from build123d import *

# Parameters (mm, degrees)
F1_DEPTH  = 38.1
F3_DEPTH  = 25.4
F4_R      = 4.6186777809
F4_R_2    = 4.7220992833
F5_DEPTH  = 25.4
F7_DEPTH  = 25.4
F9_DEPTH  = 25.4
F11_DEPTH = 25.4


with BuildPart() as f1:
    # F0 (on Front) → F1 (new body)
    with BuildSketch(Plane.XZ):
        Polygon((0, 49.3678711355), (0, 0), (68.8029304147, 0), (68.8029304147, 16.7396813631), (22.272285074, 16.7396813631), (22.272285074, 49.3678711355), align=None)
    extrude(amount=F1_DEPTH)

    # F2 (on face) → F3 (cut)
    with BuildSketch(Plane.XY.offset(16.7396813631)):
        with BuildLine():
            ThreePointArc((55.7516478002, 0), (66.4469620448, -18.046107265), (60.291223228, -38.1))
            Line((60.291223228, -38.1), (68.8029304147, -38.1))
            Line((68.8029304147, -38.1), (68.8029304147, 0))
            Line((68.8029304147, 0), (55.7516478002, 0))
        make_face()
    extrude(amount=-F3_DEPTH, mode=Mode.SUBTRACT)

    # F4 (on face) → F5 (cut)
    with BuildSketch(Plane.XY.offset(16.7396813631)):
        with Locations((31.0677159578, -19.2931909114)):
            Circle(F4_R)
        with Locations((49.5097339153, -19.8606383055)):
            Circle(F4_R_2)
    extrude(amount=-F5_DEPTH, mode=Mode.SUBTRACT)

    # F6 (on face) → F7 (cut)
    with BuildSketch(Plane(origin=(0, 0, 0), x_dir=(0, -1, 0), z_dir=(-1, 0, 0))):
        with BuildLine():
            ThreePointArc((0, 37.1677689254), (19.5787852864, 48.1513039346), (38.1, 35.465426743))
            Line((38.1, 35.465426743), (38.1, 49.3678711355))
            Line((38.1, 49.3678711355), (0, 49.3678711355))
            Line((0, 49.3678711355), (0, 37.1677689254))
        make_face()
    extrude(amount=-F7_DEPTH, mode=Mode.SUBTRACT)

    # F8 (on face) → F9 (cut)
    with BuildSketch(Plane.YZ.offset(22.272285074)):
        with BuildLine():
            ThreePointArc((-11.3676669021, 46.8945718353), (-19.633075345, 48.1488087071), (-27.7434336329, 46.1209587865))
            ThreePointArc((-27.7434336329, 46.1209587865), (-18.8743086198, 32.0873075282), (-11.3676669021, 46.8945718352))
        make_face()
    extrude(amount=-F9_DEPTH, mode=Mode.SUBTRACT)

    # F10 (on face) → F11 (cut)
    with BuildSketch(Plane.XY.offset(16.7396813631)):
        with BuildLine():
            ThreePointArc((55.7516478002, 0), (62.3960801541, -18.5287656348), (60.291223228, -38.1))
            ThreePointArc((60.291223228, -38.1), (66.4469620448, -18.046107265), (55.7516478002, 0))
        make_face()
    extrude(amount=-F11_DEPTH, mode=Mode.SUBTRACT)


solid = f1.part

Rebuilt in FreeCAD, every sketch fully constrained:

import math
import FreeCAD as App
import Part
import Sketcher
Q = App.Units.Quantity

doc = App.newDocument("Part")
body = doc.addObject("PartDesign::Body", "Body")

sketch1 = body.newObject("Sketcher::SketchObject", "Sketch")
sketch1.AttachmentSupport = (doc.getObject("XZ_Plane"), [""])
sketch1.MapMode = "FlatFace"
sketch1.addGeometry([
    Part.LineSegment(App.Vector(0, 49, 0), App.Vector(0, 0, 0)),
    Part.LineSegment(App.Vector(0, 0, 0), App.Vector(69, 0, 0)),
    Part.LineSegment(App.Vector(69, 0, 0), App.Vector(69, 17, 0)),
    Part.LineSegment(App.Vector(69, 17, 0), App.Vector(22, 17, 0)),
    Part.LineSegment(App.Vector(22, 17, 0), App.Vector(22, 49, 0)),
    Part.LineSegment(App.Vector(22, 49, 0), App.Vector(0, 49, 0)),
], False)
sketch1.addConstraint([
    Sketcher.Constraint("Coincident", 0, 2, 1, 1),
    Sketcher.Constraint("Coincident", 1, 2, 2, 1),
    Sketcher.Constraint("Coincident", 2, 2, 3, 1),
    Sketcher.Constraint("Coincident", 3, 2, 4, 1),
    Sketcher.Constraint("Coincident", 4, 2, 5, 1),
    Sketcher.Constraint("Coincident", 5, 2, 0, 1),
    Sketcher.Constraint("Vertical", 0),
    Sketcher.Constraint("Horizontal", 1),
    Sketcher.Constraint("Vertical", 2),
    Sketcher.Constraint("Horizontal", 3),
    Sketcher.Constraint("Vertical", 4),
    Sketcher.Constraint("Horizontal", 5),
    Sketcher.Constraint("Coincident", 0, 2, -1, 1),
    Sketcher.Constraint("DistanceX", 1, 1, 1, 2, Q("68.80293 mm")),
    Sketcher.Constraint("DistanceY", 0, 2, 0, 1, Q("49.367871 mm")),
    Sketcher.Constraint("DistanceY", 2, 1, 2, 2, Q("16.739681 mm")),
    Sketcher.Constraint("DistanceX", 3, 2, 3, 1, Q("46.530645 mm")),
])
pad1 = body.newObject("PartDesign::Pad", "Pad")
pad1.Profile = sketch1
pad1.Length = Q("1.5 in")

sketch2 = body.newObject("Sketcher::SketchObject", "Sketch001")
sketch2.AttachmentSupport = (doc.getObject("XY_Plane"), [""])
sketch2.MapMode = "FlatFace"
sketch2.AttachmentOffset = App.Placement(App.Vector(0, 0, 16.739681), App.Rotation())
sketch2.addGeometry([
    Part.ArcOfCircle(Part.Circle(App.Vector(41, -21, 0), App.Vector(0, 0, 1), 26), math.radians(-41), math.radians(55)),
    Part.LineSegment(App.Vector(60, -38, 0), App.Vector(69, -38, 0)),
    Part.LineSegment(App.Vector(69, -38, 0), App.Vector(69, 0, 0)),
    Part.LineSegment(App.Vector(69, 0, 0), App.Vector(56, 0, 0)),
], False)
sketch2.addConstraint([
    Sketcher.Constraint("Coincident", 0, 1, 1, 1),
    Sketcher.Constraint("Coincident", 1, 2, 2, 1),
    Sketcher.Constraint("Coincident", 2, 2, 3, 1),
    Sketcher.Constraint("Coincident", 3, 2, 0, 2),
    Sketcher.Constraint("Horizontal", 1),
    Sketcher.Constraint("Vertical", 2),
    Sketcher.Constraint("Horizontal", 3),
    Sketcher.Constraint("PointOnObject", 2, 2, -1),
    Sketcher.Constraint("DistanceY", 2, 1, 2, 2, Q("1.5 in")),
    Sketcher.Constraint("Radius", 0, Q("25.930784 mm")),
    Sketcher.Constraint("DistanceX", 1, 1, 1, 2, Q("8.511707 mm")),
    Sketcher.Constraint("DistanceX", 3, 2, 3, 1, Q("13.051283 mm")),
    Sketcher.Constraint("DistanceX", -1, 1, 1, 2, Q("68.80293 mm")),
])
pocket1 = body.newObject("PartDesign::Pocket", "Pocket")
pocket1.Profile = sketch2
pocket1.Length = Q("1 in")

sketch3 = body.newObject("Sketcher::SketchObject", "Sketch002")
sketch3.AttachmentSupport = (doc.getObject("XY_Plane"), [""])
sketch3.MapMode = "FlatFace"
sketch3.AttachmentOffset = App.Placement(App.Vector(0, 0, 16.739681), App.Rotation())
sketch3.addGeometry([
    Part.Circle(App.Vector(31.1, -19.3, 0), App.Vector(0, 0, 1), 4.6),
    Part.Circle(App.Vector(49.5, -19.9, 0), App.Vector(0, 0, 1), 4.7),
], False)
sketch3.addConstraint([
    Sketcher.Constraint("Diameter", 1, Q("9.444199 mm")),
    Sketcher.Constraint("Diameter", 0, Q("9.237356 mm")),
    Sketcher.Constraint("DistanceY", 0, 3, -1, 1, Q("19.293191 mm")),
    Sketcher.Constraint("DistanceY", 1, 3, -1, 1, Q("19.860638 mm")),
    Sketcher.Constraint("DistanceX", -1, 1, 0, 3, Q("31.067716 mm")),
    Sketcher.Constraint("DistanceX", -1, 1, 1, 3, Q("49.509734 mm")),
])
pocket2 = body.newObject("PartDesign::Pocket", "Pocket001")
pocket2.Profile = sketch3
pocket2.Length = Q("1 in")

sketch4 = body.newObject("Sketcher::SketchObject", "Sketch003")
sketch4.AttachmentSupport = (doc.getObject("YZ_Plane"), [""])
sketch4.MapMode = "FlatFace"
sketch4.addGeometry([
    Part.ArcOfCircle(Part.Circle(App.Vector(-19, 27, 0), App.Vector(0, 0, 1), 21), math.radians(29), math.radians(156)),
    Part.LineSegment(App.Vector(-38, 35, 0), App.Vector(-38, 49, 0)),
    Part.LineSegment(App.Vector(-38, 49, 0), App.Vector(0, 49, 0)),
    Part.LineSegment(App.Vector(0, 49, 0), App.Vector(0, 37, 0)),
], False)
sketch4.addConstraint([
    Sketcher.Constraint("Coincident", 0, 2, 1, 1),
    Sketcher.Constraint("Coincident", 1, 2, 2, 1),
    Sketcher.Constraint("Coincident", 2, 2, 3, 1),
    Sketcher.Constraint("Coincident", 3, 2, 0, 1),
    Sketcher.Constraint("Vertical", 1),
    Sketcher.Constraint("Horizontal", 2),
    Sketcher.Constraint("Vertical", 3),
    Sketcher.Constraint("PointOnObject", 2, 2, -2),
    Sketcher.Constraint("DistanceX", 2, 1, 2, 2, Q("1.5 in")),
    Sketcher.Constraint("Radius", 0, Q("21.270683 mm")),
    Sketcher.Constraint("DistanceY", 1, 1, 1, 2, Q("13.902444 mm")),
    Sketcher.Constraint("DistanceY", 3, 2, 3, 1, Q("12.200102 mm")),
    Sketcher.Constraint("DistanceY", -1, 1, 0, 3, Q("26.901821 mm")),
])
pocket3 = body.newObject("PartDesign::Pocket", "Pocket002")
pocket3.Profile = sketch4
pocket3.Length = Q("1 in")
pocket3.Reversed = True

sketch5 = body.newObject("Sketcher::SketchObject", "Sketch004")
sketch5.AttachmentSupport = (doc.getObject("YZ_Plane"), [""])
sketch5.MapMode = "FlatFace"
sketch5.AttachmentOffset = App.Placement(App.Vector(0, 0, 22.272285), App.Rotation())
sketch5.addGeometry([
    Part.ArcOfCircle(Part.Circle(App.Vector(-19, 27, 0), App.Vector(0, 0, 1), 21), math.radians(70), math.radians(115)),
    Part.ArcOfCircle(Part.Circle(App.Vector(-19, 42, 0), App.Vector(0, 0, 1), 10), math.radians(152), math.radians(394)),
], False)
sketch5.addConstraint([
    Sketcher.Constraint("Coincident", 0, 1, 1, 2),
    Sketcher.Constraint("Coincident", 1, 1, 0, 2),
    Sketcher.Constraint("Radius", 0, Q("21.270683 mm")),
    Sketcher.Constraint("Radius", 1, Q("9.545388 mm")),
    Sketcher.Constraint("DistanceX", 0, 3, -1, 1, Q("18.629339 mm")),
    Sketcher.Constraint("DistanceY", -1, 1, 0, 3, Q("26.901821 mm")),
    Sketcher.Constraint("DistanceY", -1, 1, 1, 3, Q("41.622062 mm")),
    Sketcher.Constraint("DistanceY", -1, 1, 0, 1, Q("46.894572 mm")),
])
pocket4 = body.newObject("PartDesign::Pocket", "Pocket003")
pocket4.Profile = sketch5
pocket4.Length = Q("1 in")

sketch6 = body.newObject("Sketcher::SketchObject", "Sketch005")
sketch6.AttachmentSupport = (doc.getObject("XY_Plane"), [""])
sketch6.MapMode = "FlatFace"
sketch6.AttachmentOffset = App.Placement(App.Vector(0, 0, 16.739681), App.Rotation())
sketch6.addGeometry([
    Part.ArcOfCircle(Part.Circle(App.Vector(19, -24, 0), App.Vector(0, 0, 1), 44), math.radians(-19), math.radians(33)),
    Part.ArcOfCircle(Part.Circle(App.Vector(41, -21, 0), App.Vector(0, 0, 1), 26), math.radians(-41), math.radians(55)),
], False)
sketch6.addConstraint([
    Sketcher.Constraint("Coincident", 0, 1, 1, 1),
    Sketcher.Constraint("Coincident", 1, 2, 0, 2),
    Sketcher.Constraint("PointOnObject", 1, 2, -1),
    Sketcher.Constraint("DistanceY", 0, 1, -1, 1, Q("1.5 in")),
    Sketcher.Constraint("Radius", 0, Q("43.974117 mm")),
    Sketcher.Constraint("Radius", 1, Q("25.930784 mm")),
    Sketcher.Constraint("DistanceX", 1, 3, 0, 1, Q("19.592919 mm")),
    Sketcher.Constraint("DistanceX", -1, 1, 0, 3, Q("18.730817 mm")),
])
pocket5 = body.newObject("PartDesign::Pocket", "Pocket004")
pocket5.Profile = sketch6
pocket5.Length = Q("1 in")

doc.recompute()
